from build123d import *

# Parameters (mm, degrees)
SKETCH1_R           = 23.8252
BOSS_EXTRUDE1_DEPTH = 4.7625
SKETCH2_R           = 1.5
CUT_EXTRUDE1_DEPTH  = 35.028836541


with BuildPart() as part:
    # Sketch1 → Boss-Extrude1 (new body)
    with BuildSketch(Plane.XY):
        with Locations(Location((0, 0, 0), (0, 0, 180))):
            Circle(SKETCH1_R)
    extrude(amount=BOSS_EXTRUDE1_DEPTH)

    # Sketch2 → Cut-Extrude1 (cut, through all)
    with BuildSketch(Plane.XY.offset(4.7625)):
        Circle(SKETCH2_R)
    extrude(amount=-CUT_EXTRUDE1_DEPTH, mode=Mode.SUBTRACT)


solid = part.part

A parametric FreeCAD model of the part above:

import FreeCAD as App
import Part
import Sketcher

V = App.Vector
Q = App.Units.Quantity

doc = App.newDocument("Part")
params = doc.addObject("Spreadsheet::Sheet", "Params")
for row, (alias, value) in enumerate([
    ("sketch1_diameter", "1.876 in"),
    ("pad1_length", "0.1875 in"),
], start=1):
    params.set(f"A{row}", alias)
    params.set(f"B{row}", "=" + value)
    params.setAlias(f"B{row}", alias)

body = doc.addObject("PartDesign::Body", "Body")

sketch1 = doc.addObject("Sketcher::SketchObject", "Sketch")
body.addObject(sketch1)
sketch1.AttachmentSupport = (doc.XY_Plane, [""])
sketch1.MapMode = "FlatFace"
sketch1.addGeometry(Part.Circle(V(0, 0, 0), V(0, 0, 1), 23.8252), False)
sketch1.addConstraint(Sketcher.Constraint("Coincident", 0, 3, -1, 1))
sketch1.addConstraint(Sketcher.Constraint("Diameter", 0, Q("1.876 in")))
sketch1.setExpression("Constraints[1]", "Params.sketch1_diameter")
pad1 = doc.addObject("PartDesign::Pad", "Pad")
body.addObject(pad1)
pad1.Profile = sketch1
pad1.setExpression("Length", "Params.pad1_length")

sketch2 = doc.addObject("Sketcher::SketchObject", "Sketch001")
body.addObject(sketch2)
sketch2.AttachmentSupport = (doc.XY_Plane, [""])
sketch2.MapMode = "FlatFace"
sketch2.AttachmentOffset = App.Placement(V(0, 0, 0.1875 * 25.4), App.Rotation())
sketch2.addGeometry(Part.Circle(V(0, 0, 0), V(0, 0, 1), 1.5), False)
sketch2.addConstraint(Sketcher.Constraint("Coincident", 0, 3, -1, 1))
sketch2.addConstraint(Sketcher.Constraint("Diameter", 0, 3.0))
pocket1 = doc.addObject("PartDesign::Pocket", "Pocket")
body.addObject(pocket1)
pocket1.Profile = sketch2
pocket1.Type = "ThroughAll"

doc.recompute()
